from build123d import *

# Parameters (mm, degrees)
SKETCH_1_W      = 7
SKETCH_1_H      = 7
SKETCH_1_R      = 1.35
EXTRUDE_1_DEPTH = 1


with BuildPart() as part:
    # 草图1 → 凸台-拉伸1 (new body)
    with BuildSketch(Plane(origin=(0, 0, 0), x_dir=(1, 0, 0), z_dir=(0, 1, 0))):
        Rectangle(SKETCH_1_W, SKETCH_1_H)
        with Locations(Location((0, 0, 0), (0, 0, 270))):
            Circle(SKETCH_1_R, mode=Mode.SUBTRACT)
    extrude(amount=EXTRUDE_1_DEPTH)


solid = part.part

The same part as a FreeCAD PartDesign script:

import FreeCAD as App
import Part
import Sketcher

V = App.Vector
Q = App.Units.Quantity


def add_polygon(sketch, points):
    """Adds a closed chain of lines whose ends are joined by coincident constraints."""
    first, n = sketch.GeometryCount, len(points)
    for a, b in zip(points, points[1:] + points[:1]):
        sketch.addGeometry(Part.LineSegment(App.Vector(*a, 0), App.Vector(*b, 0)), False)
    for i in range(n):
        sketch.addConstraint(Sketcher.Constraint("Coincident", first + i, 2, first + (i + 1) % n, 1))

doc = App.newDocument("Part")
params = doc.addObject("Spreadsheet::Sheet", "Params")
for row, (alias, value) in enumerate([
    ("sketch1_diameter", "2.7 mm"),
    ("sketch1_width", "7 mm"),
    ("pad1_length", "1 mm"),
], start=1):
    params.set(f"A{row}", alias)
    params.set(f"B{row}", "=" + value)
    params.setAlias(f"B{row}", alias)

body = doc.addObject("PartDesign::Body", "Body")

# Sketch on XZ plane
sketch1 = body.newObject("Sketcher::SketchObject", "Sketch")
sketch1.AttachmentSupport = (doc.getObject("XZ_Plane"), [""])
sketch1.MapMode = "FlatFace"
add_polygon(sketch1, [(-3.5, -3.5), (-3.5, 3.5), (3.5, 3.5), (3.5, -3.5)])  # lines 0-3
sketch1.addGeometry(Part.Circle(V(0, 0, 0), V(0, 0, 1), 1.35), False)  # 4
sketch1.addConstraint([
    Sketcher.Constraint("Vertical", 0),
    Sketcher.Constraint("Horizontal", 1),
    Sketcher.Constraint("Vertical", 2),
    Sketcher.Constraint("Horizontal", 3),
    Sketcher.Constraint("Coincident", 4, 3, -1, 1),
    Sketcher.Constraint("Symmetric", 0, 2, 2, 2, -1, 1),
    Sketcher.Constraint("Equal", 3, 0),
    Sketcher.Constraint("Diameter", 4, Q("2.7 mm")),
    Sketcher.Constraint("DistanceX", 1, 1, 1, 2, Q("7 mm")),
])
sketch1.setExpression("Constraints[11]", "Params.sketch1_diameter")
sketch1.setExpression("Constraints[12]", "Params.sketch1_width")
pad1 = body.newObject("PartDesign::Pad", "Pad")
pad1.Profile = sketch1
pad1.setExpression("Length", "Params.pad1_length")
pad1.Reversed = True

doc.recompute()
